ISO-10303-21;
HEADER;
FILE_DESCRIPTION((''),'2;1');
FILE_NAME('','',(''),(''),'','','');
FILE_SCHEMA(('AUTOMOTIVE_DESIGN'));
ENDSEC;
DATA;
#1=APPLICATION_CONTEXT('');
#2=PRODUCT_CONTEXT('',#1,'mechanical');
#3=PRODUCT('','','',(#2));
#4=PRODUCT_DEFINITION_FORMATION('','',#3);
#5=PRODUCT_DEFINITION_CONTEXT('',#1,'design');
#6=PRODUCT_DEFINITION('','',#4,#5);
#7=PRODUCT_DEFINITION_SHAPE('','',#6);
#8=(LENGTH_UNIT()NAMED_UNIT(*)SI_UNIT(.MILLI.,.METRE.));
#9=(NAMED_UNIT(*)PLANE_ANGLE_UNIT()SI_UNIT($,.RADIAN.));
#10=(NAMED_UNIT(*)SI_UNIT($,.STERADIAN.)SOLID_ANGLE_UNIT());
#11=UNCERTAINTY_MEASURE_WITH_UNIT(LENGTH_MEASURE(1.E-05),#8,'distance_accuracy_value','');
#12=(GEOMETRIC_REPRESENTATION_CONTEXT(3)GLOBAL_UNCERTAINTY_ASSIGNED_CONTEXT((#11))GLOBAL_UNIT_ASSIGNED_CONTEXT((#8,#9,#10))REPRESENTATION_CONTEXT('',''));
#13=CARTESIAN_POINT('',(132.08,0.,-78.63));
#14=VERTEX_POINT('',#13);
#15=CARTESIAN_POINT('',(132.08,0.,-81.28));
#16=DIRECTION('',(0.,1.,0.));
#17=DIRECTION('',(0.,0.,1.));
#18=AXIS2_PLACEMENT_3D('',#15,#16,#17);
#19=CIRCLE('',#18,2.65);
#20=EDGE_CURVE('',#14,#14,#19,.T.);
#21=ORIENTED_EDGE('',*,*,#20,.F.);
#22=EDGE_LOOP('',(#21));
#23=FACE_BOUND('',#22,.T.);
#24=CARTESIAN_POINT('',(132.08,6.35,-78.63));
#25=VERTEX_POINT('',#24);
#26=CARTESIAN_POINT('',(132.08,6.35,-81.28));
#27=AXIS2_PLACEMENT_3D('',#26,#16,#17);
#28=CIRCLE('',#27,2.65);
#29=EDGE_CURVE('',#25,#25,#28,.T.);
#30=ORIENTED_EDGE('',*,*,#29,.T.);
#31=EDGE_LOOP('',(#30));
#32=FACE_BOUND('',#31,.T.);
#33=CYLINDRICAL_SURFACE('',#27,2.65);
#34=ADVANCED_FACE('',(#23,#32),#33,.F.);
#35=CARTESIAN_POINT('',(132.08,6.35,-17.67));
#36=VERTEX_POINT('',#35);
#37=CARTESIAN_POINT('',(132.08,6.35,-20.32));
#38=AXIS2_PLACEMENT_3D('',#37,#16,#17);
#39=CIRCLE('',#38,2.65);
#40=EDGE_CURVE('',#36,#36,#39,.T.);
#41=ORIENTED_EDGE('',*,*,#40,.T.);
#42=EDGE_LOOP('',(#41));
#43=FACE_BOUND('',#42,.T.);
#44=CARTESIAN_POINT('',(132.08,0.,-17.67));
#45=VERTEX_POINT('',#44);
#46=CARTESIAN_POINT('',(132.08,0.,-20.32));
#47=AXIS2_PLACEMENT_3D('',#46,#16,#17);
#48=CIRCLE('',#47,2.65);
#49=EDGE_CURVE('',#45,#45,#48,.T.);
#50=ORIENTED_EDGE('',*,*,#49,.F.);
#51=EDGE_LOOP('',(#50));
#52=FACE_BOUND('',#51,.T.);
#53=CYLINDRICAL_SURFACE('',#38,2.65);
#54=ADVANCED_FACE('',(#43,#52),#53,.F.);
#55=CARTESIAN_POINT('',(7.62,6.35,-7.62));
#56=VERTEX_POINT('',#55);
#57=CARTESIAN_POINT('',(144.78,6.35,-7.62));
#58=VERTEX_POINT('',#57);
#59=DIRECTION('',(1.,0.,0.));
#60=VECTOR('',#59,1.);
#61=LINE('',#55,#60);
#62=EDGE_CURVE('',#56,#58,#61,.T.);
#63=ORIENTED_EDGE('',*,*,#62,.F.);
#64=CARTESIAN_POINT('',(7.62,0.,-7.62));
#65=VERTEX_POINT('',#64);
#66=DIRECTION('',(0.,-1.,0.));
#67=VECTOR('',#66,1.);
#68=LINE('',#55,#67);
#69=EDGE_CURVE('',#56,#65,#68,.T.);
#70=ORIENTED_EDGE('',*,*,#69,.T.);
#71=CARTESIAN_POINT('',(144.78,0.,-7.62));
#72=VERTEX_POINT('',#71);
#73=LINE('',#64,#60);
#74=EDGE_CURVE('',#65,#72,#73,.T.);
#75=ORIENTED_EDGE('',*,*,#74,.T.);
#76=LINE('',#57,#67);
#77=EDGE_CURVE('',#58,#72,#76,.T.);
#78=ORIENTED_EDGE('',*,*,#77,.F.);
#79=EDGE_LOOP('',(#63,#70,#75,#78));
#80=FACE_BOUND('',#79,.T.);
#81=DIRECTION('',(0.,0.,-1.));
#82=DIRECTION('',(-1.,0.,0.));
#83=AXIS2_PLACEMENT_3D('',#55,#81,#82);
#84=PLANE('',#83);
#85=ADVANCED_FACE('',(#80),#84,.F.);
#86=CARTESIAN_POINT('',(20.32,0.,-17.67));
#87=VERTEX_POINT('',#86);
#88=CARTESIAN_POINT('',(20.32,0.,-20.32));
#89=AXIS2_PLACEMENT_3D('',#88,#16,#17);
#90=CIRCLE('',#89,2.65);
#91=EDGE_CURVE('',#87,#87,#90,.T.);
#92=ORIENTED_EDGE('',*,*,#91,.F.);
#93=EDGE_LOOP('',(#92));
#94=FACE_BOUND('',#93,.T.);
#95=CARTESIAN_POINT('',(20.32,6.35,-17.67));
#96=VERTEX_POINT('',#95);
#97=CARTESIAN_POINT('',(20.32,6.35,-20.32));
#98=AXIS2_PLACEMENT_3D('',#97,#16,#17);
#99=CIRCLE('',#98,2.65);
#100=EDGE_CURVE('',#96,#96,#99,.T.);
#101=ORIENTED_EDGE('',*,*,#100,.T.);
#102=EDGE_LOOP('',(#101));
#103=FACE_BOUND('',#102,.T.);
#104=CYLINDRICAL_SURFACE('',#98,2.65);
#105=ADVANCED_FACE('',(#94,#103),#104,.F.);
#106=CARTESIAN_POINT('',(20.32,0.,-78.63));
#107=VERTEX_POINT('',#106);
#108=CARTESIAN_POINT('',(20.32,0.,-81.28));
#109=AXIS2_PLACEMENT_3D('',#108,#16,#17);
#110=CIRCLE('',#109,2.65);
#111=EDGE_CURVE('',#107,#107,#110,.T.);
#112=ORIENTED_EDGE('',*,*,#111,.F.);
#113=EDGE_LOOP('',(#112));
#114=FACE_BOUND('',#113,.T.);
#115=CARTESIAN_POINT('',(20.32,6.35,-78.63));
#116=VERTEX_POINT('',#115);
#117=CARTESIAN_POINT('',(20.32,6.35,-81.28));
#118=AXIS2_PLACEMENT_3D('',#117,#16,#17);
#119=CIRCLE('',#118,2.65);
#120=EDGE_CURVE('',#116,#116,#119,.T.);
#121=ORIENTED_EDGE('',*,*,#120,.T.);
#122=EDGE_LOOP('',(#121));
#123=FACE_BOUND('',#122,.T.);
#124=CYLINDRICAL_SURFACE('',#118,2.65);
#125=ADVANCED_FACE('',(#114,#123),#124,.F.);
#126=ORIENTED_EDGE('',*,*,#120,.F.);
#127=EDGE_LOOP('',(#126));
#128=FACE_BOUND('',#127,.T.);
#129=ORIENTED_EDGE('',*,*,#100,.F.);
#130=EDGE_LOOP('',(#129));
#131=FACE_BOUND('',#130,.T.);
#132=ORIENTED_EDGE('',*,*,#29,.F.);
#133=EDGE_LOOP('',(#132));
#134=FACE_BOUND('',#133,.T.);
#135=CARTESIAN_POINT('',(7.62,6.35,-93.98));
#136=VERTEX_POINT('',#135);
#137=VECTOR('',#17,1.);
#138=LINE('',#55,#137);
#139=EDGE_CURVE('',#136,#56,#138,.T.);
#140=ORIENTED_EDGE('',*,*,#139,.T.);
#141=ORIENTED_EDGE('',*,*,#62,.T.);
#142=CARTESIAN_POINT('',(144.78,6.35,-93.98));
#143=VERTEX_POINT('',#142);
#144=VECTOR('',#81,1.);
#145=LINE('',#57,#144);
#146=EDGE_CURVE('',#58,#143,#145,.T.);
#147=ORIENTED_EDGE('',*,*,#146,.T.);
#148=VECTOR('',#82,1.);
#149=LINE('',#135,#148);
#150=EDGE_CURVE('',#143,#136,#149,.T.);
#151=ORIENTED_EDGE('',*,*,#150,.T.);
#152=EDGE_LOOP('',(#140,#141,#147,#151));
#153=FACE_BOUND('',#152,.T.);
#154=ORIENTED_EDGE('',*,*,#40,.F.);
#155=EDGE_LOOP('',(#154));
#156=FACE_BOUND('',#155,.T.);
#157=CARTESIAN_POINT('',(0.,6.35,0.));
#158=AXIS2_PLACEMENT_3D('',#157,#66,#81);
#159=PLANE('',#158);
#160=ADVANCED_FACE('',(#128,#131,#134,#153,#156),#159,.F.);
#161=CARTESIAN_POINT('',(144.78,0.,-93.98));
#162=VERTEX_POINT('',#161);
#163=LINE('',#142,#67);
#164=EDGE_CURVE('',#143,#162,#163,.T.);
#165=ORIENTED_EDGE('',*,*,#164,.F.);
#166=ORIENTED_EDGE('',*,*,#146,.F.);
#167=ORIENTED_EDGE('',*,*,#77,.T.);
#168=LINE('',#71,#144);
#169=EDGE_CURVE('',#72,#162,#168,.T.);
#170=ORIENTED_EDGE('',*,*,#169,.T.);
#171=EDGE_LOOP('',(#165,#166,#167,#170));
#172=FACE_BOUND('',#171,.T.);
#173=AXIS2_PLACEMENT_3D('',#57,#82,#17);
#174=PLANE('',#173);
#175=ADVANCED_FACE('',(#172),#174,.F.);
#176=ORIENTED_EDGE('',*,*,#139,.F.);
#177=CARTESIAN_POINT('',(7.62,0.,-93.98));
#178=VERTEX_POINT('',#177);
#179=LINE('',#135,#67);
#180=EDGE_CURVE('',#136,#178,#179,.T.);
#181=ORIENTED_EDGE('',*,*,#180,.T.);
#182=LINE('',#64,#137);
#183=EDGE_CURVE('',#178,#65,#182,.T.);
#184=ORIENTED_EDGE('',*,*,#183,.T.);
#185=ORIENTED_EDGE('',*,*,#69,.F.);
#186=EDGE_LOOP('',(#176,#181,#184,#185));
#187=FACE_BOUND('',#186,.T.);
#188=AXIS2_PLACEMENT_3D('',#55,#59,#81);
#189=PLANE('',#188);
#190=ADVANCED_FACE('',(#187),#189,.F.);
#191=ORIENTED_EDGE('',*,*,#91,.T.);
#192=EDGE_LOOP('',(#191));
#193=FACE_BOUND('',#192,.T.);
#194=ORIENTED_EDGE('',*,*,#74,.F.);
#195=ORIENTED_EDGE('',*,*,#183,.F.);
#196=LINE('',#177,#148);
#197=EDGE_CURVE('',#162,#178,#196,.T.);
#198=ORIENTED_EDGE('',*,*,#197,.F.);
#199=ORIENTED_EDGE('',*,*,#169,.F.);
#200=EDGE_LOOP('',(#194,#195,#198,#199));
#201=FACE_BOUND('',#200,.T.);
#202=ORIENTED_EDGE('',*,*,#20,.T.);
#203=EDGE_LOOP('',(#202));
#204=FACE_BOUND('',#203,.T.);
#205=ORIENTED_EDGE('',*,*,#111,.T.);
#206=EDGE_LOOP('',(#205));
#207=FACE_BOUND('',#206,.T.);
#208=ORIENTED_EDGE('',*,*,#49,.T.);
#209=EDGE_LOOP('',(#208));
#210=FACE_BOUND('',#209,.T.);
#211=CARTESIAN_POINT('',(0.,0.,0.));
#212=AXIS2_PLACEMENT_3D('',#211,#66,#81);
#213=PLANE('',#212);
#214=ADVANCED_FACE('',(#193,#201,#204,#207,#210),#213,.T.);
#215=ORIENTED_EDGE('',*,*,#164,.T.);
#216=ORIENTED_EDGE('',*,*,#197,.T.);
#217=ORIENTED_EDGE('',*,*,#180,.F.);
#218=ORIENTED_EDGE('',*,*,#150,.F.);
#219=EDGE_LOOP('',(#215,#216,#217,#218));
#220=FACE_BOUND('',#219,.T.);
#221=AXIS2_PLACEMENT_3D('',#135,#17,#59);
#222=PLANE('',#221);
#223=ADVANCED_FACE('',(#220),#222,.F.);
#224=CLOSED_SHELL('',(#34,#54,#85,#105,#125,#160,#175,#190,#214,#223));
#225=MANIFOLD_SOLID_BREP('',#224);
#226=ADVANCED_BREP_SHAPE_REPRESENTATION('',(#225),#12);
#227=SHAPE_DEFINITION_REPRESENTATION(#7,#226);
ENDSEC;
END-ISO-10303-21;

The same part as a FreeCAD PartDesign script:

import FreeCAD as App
import Part
import Sketcher

V = App.Vector
Q = App.Units.Quantity

doc = App.newDocument("Part")
params = doc.addObject("Spreadsheet::Sheet", "Params")
for row, (alias, value) in enumerate([
    ("sketch1_width", "5.4 in"),
    ("sketch1_height", "3.4 in"),
    ("pad1_length", "0.25 in"),
    ("hole_diameter", "5.3 mm"),
], start=1):
    params.set(f"A{row}", alias)
    params.set(f"B{row}", "=" + value)
    params.setAlias(f"B{row}", alias)

body = doc.addObject("PartDesign::Body", "Body")

sketch1 = body.newObject("Sketcher::SketchObject", "Sketch")
sketch1.AttachmentSupport = (doc.getObject("XZ_Plane"), [""])
sketch1.MapMode = "FlatFace"
sketch1.addGeometry([
    Part.LineSegment(V(8, -94, 0), V(8, -8, 0)),
    Part.LineSegment(V(8, -8, 0), V(145, -8, 0)),
    Part.LineSegment(V(145, -8, 0), V(145, -94, 0)),
    Part.LineSegment(V(145, -94, 0), V(8, -94, 0)),
], False)
sketch1.addConstraint([
    Sketcher.Constraint("Coincident", 0, 2, 1, 1),
    Sketcher.Constraint("Coincident", 1, 2, 2, 1),
    Sketcher.Constraint("Coincident", 2, 2, 3, 1),
    Sketcher.Constraint("Coincident", 3, 2, 0, 1),
    Sketcher.Constraint("Vertical", 0),
    Sketcher.Constraint("Horizontal", 1),
    Sketcher.Constraint("Vertical", 2),
    Sketcher.Constraint("Horizontal", 3),
    Sketcher.Constraint("DistanceX", 1, 1, 1, 2, Q("5.4 in")),
    Sketcher.Constraint("DistanceY", 0, 1, 0, 2, Q("3.4 in")),
    Sketcher.Constraint("DistanceX", -1, 1, 0, 2, Q("0.3 in")),
    Sketcher.Constraint("DistanceY", 0, 2, -1, 1, Q("0.3 in")),
])
sketch1.setExpression("Constraints[8]", "Params.sketch1_width")
sketch1.setExpression("Constraints[9]", "Params.sketch1_height")
pad1 = body.newObject("PartDesign::Pad", "Pad")
pad1.Profile = sketch1
pad1.setExpression("Length", "Params.pad1_length")
pad1.Reversed = True

sketch2 = body.newObject("Sketcher::SketchObject", "Sketch001")
sketch2.AttachmentSupport = (doc.getObject("XZ_Plane"), [""])
sketch2.MapMode = "FlatFace"
sketch2.AttachmentOffset = App.Placement(V(0, 0, -0.25 * 25.4), App.Rotation())
sketch2.addGeometry([
    Part.Circle(V(20.3, -81.3, 0), V(0, 0, 1), 2.6),
    Part.Circle(V(132.1, -81.3, 0), V(0, 0, 1), 2.6),
    Part.Circle(V(132.1, -20.3, 0), V(0, 0, 1), 2.6),
    Part.Circle(V(20.3, -20.3, 0), V(0, 0, 1), 2.6),
], False)
sketch2.addConstraint([
    Sketcher.Constraint("Equal", 0, 1),
    Sketcher.Constraint("Equal", 1, 2),
    Sketcher.Constraint("Equal", 2, 3),
    Sketcher.Constraint("Horizontal", 0, 3, 1, 3),
    Sketcher.Constraint("Horizontal", 2, 3, 3, 3),
    Sketcher.Constraint("Vertical", 1, 3, 2, 3),
    Sketcher.Constraint("Vertical", 0, 3, 3, 3),
    Sketcher.Constraint("DistanceX", -1, 1, 0, 3, Q("0.8 in")),
    Sketcher.Constraint("DistanceY", 0, 3, -1, 1, Q("3.2 in")),
    Sketcher.Constraint("DistanceX", -1, 1, 1, 3, Q("5.2 in")),
    Sketcher.Constraint("DistanceY", 2, 3, -1, 1, Q("0.8 in")),
    Sketcher.Constraint("Diameter", 0, Q("5.3 mm")),
])
doc.recompute()
hole = body.newObject("PartDesign::Hole", "Hole")
hole.Profile = sketch2
hole.ThreadType = "None"
hole.setExpression("Diameter", "Params.hole_diameter")
hole.DepthType = "ThroughAll"
hole.Reversed = True

doc.recompute()
